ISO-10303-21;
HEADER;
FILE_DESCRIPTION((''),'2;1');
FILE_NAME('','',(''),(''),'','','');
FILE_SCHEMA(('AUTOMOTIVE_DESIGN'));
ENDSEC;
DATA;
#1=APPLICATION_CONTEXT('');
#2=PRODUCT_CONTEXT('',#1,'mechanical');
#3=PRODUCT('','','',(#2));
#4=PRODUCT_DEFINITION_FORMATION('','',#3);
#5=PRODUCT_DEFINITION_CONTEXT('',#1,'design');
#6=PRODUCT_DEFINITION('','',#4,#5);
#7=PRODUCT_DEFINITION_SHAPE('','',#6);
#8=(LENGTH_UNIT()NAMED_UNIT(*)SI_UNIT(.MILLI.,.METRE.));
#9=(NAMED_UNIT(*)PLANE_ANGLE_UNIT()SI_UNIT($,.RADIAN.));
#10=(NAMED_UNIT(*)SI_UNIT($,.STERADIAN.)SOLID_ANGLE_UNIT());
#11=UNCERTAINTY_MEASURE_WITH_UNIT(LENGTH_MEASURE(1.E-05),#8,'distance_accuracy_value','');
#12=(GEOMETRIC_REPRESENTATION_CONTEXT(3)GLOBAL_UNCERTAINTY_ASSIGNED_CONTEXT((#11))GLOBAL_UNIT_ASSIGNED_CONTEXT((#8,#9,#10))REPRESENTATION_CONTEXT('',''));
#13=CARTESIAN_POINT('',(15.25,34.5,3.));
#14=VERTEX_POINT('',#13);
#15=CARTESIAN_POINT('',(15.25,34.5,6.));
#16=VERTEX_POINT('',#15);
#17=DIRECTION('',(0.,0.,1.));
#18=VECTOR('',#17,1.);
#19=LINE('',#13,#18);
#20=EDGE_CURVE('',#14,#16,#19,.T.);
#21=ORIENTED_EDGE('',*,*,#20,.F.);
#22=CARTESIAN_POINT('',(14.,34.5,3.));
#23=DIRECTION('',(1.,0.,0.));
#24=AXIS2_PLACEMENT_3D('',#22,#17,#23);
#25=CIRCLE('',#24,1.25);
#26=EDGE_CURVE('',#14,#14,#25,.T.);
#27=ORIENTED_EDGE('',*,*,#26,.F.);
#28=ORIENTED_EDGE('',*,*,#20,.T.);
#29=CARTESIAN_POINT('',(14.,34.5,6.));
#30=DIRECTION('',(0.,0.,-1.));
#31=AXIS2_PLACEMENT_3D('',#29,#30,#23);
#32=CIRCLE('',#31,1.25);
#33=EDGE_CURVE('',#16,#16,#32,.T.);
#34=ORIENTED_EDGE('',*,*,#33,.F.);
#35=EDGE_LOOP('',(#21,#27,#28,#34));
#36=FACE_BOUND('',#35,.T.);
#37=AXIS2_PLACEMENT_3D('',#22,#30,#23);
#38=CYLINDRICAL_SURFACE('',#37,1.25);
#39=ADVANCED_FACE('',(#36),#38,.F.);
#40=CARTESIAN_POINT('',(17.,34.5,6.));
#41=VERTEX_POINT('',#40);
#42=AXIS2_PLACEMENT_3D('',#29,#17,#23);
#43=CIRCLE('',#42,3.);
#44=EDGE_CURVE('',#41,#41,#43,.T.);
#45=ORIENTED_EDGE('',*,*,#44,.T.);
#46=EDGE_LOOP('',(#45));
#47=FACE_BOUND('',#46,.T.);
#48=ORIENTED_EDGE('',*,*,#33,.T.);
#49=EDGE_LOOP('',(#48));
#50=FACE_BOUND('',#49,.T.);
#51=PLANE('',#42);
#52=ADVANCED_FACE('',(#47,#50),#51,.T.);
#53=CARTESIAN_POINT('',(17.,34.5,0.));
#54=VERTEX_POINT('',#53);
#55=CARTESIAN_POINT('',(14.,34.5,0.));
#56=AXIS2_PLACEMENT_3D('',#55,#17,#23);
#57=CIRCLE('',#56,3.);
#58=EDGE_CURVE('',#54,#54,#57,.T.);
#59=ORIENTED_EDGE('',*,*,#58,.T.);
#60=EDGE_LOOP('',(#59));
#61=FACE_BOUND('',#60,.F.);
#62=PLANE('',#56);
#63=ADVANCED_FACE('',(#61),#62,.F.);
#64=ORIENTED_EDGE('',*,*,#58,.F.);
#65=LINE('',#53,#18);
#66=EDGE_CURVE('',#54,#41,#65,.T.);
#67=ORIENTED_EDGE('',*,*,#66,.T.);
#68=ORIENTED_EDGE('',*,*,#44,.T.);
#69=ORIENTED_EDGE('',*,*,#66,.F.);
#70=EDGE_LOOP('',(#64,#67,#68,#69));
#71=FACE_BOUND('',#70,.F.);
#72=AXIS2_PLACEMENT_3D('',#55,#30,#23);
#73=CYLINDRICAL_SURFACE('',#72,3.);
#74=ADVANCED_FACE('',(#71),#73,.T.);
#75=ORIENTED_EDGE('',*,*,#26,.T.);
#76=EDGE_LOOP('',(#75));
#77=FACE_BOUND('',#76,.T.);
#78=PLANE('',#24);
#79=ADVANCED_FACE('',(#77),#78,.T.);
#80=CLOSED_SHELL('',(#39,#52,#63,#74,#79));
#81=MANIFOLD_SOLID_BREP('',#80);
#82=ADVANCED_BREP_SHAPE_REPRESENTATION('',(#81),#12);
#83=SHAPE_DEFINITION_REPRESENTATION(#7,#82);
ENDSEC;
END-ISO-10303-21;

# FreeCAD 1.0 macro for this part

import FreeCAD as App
import Part
import Sketcher

V = App.Vector
Q = App.Units.Quantity

doc = App.newDocument("Part")
params = doc.addObject("Spreadsheet::Sheet", "Params")
for row, (alias, value) in enumerate([
    ("sketch1_diameter", "2.5 mm"),
    ("pad1_length", "5 mm"),
    ("sketch2_diameter", "6 mm"),
    ("pad2_length", "6 mm"),
], start=1):
    params.set(f"A{row}", alias)
    params.set(f"B{row}", "=" + value)
    params.setAlias(f"B{row}", alias)

body = doc.addObject("PartDesign::Body", "Body")

sketch1 = body.newObject("Sketcher::SketchObject", "Sketch")
sketch1.AttachmentSupport = (doc.getObject("XY_Plane"), [""])
sketch1.MapMode = "FlatFace"
sketch1.AttachmentOffset = App.Placement(V(0, 0, 3), App.Rotation())
sketch1.addGeometry(Part.Circle(V(59, 14, 0), V(0, 0, 1), 1.2), False)
sketch1.addConstraint([
    Sketcher.Constraint("Diameter", 0, Q("2.5 mm")),
    Sketcher.Constraint("DistanceX", -1, 1, 0, 3, Q("59 mm")),
    Sketcher.Constraint("DistanceY", -1, 1, 0, 3, Q("14 mm")),
])
sketch1.setExpression("Constraints[0]", "Params.sketch1_diameter")
pad1 = body.newObject("PartDesign::Pad", "Pad")
pad1.Profile = sketch1
pad1.setExpression("Length", "Params.pad1_length")
body2 = doc.addObject("PartDesign::Body", "Body001")

sketch2 = body2.newObject("Sketcher::SketchObject", "Sketch001")
sketch2.AttachmentSupport = (doc.getObject("XY_Plane001"), [""])
sketch2.MapMode = "FlatFace"
sketch2.addGeometry(Part.Circle(V(59, 14, 0), V(0, 0, 1), 3), False)
sketch2.addConstraint([
    Sketcher.Constraint("Diameter", 0, Q("6 mm")),
    Sketcher.Constraint("DistanceX", -1, 1, 0, 3, Q("59 mm")),
    Sketcher.Constraint("DistanceY", -1, 1, 0, 3, Q("14 mm")),
])
sketch2.setExpression("Constraints[0]", "Params.sketch2_diameter")
pad2 = body2.newObject("PartDesign::Pad", "Pad001")
pad2.Profile = sketch2
pad2.setExpression("Length", "Params.pad2_length")
doc.recompute()

boolean = body2.newObject("PartDesign::Boolean", "Boolean")
boolean.Type = "Cut"
boolean.addObjects([body])
body3 = doc.addObject("PartDesign::Body", "Body002")
doc.recompute()

body2.Placement = App.Placement(V(-45, 20.5, 0), App.Rotation(V(0, 0, 1), 0))
boolean2 = body3.newObject("PartDesign::Boolean", "Boolean001")
boolean2.Type = "Fuse"
boolean2.addObjects([body2])

doc.recompute()
